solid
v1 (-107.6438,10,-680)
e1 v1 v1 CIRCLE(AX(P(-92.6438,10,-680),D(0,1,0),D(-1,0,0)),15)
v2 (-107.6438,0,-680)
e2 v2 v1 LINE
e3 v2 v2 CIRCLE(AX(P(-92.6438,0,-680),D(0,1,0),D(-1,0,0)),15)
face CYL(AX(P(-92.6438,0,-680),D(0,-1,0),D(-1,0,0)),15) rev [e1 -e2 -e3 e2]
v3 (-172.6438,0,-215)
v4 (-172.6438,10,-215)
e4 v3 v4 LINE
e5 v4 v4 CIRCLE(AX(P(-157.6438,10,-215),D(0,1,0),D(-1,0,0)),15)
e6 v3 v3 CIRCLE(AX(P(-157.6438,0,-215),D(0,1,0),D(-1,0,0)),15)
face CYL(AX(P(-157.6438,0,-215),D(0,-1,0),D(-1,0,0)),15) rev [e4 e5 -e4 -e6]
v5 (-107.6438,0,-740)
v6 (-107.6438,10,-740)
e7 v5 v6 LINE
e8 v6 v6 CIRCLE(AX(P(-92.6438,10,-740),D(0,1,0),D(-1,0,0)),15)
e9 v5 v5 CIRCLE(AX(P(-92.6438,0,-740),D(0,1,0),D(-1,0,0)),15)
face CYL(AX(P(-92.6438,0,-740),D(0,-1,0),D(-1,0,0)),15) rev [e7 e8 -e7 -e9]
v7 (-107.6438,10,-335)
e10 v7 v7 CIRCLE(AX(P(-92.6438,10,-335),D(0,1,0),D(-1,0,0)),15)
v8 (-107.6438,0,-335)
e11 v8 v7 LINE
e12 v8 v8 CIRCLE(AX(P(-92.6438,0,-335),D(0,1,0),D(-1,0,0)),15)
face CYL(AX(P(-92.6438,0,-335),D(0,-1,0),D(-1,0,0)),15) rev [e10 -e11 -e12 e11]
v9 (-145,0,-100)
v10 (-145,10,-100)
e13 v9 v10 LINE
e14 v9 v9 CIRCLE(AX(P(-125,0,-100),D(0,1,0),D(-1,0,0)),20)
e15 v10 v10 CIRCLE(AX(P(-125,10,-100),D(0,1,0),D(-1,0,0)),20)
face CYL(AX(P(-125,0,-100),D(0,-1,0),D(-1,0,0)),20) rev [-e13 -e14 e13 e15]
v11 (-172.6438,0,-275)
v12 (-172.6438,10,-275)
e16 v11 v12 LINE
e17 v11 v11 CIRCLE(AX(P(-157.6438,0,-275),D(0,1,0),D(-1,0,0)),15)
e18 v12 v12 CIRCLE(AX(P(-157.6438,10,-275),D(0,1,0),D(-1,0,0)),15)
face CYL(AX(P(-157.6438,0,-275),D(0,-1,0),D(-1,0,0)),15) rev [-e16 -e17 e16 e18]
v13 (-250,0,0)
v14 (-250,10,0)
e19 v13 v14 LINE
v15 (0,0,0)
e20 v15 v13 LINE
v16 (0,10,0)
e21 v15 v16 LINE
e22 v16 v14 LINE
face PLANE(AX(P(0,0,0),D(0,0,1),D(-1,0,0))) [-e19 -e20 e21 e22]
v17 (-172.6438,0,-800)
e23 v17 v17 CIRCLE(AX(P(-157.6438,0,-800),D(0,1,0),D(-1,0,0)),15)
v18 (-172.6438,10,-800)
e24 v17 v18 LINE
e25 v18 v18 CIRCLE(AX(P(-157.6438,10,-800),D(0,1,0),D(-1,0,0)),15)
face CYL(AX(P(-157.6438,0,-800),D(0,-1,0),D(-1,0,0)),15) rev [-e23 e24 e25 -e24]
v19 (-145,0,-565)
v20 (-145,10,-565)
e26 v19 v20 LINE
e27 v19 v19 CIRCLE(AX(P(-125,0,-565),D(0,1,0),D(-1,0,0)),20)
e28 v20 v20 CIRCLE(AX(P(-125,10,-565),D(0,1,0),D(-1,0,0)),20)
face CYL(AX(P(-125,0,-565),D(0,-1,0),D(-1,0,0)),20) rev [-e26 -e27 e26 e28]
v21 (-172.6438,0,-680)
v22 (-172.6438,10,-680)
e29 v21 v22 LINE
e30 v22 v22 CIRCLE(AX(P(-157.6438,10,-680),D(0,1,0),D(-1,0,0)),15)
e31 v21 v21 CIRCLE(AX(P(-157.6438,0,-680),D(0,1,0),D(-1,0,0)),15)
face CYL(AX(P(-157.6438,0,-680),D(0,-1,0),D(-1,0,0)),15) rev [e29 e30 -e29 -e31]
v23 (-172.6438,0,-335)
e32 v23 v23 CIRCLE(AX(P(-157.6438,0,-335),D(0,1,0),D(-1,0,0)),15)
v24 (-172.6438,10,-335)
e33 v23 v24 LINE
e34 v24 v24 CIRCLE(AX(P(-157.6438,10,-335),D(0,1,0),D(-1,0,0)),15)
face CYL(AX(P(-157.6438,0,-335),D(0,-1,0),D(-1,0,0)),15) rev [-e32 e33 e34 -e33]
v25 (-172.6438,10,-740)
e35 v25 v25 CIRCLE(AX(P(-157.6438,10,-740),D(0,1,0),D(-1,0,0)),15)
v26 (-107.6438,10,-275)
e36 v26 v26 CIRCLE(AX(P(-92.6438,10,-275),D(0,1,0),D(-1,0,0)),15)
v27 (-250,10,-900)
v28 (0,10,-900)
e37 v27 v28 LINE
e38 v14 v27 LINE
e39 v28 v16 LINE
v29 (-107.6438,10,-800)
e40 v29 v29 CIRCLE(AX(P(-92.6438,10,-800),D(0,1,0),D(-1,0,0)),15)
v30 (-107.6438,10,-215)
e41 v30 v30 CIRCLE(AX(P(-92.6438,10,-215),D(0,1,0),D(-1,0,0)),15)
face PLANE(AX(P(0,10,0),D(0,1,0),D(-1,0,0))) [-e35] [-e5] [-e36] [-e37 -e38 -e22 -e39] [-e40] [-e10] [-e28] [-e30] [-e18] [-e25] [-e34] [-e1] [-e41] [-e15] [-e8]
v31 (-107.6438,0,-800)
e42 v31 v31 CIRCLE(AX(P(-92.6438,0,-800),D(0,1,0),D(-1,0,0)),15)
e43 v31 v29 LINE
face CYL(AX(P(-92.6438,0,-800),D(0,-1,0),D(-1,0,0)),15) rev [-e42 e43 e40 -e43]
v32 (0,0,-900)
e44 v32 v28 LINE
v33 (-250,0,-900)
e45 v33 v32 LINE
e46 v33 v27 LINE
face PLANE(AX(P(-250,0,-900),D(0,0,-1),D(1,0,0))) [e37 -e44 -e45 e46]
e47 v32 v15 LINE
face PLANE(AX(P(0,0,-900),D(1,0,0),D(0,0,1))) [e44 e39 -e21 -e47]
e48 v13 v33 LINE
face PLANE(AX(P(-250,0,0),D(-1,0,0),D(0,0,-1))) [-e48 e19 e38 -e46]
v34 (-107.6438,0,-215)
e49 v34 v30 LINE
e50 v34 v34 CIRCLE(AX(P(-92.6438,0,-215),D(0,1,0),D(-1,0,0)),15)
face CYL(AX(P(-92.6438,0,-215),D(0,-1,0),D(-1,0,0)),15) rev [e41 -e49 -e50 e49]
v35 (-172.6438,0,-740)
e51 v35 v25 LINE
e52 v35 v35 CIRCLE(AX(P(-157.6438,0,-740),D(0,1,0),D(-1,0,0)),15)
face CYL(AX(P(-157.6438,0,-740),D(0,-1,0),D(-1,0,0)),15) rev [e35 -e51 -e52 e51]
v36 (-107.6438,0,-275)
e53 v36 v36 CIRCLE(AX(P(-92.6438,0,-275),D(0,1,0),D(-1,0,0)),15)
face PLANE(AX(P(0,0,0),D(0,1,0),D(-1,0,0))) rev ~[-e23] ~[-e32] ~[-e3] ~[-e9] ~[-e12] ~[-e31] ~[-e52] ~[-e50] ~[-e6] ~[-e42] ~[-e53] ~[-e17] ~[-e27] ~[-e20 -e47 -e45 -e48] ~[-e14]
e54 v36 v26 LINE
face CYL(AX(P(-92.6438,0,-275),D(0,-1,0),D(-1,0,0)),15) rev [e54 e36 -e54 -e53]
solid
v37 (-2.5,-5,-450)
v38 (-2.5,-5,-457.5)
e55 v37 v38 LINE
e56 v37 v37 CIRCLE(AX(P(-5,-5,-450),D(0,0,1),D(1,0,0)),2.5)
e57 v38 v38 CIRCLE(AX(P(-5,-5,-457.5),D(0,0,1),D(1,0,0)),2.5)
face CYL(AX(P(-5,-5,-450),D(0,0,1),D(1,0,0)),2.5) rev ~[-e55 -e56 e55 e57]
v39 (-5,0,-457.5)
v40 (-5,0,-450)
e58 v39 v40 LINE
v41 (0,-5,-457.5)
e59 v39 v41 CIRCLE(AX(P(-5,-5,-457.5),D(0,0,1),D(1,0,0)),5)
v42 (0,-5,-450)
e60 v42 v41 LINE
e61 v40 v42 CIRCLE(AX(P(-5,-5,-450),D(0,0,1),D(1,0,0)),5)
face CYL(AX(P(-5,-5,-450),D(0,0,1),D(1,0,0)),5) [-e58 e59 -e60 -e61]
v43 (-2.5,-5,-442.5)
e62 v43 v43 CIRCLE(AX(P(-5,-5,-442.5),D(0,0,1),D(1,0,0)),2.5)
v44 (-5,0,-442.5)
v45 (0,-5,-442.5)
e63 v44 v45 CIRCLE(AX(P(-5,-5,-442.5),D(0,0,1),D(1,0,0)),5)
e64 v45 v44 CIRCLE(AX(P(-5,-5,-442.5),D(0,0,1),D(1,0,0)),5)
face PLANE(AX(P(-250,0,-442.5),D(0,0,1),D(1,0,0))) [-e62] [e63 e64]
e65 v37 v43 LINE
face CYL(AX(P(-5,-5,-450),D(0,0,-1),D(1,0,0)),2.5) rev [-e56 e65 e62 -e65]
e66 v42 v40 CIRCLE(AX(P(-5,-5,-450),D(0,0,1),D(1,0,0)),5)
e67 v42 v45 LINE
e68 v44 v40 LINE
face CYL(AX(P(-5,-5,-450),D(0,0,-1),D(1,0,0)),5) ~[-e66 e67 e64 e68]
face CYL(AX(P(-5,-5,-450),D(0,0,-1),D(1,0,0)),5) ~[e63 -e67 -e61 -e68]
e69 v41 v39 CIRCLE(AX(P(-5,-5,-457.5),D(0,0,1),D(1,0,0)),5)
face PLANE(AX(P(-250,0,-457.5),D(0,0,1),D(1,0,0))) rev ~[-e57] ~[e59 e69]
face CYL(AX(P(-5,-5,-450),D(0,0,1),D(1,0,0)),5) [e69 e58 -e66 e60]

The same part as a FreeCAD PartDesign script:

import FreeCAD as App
import Part
import Sketcher
Q = App.Units.Quantity


def add_polygon(sketch, points):
    """Adds a closed chain of lines whose ends are joined by coincident constraints."""
    first, n = sketch.GeometryCount, len(points)
    for a, b in zip(points, points[1:] + points[:1]):
        sketch.addGeometry(Part.LineSegment(App.Vector(*a, 0), App.Vector(*b, 0)), False)
    for i in range(n):
        sketch.addConstraint(Sketcher.Constraint("Coincident", first + i, 2, first + (i + 1) % n, 1))

doc = App.newDocument("Part")
body = doc.addObject("PartDesign::Body", "Body")
body.AllowCompound = True

# Sketch on XY plane
sketch1 = doc.addObject("Sketcher::SketchObject", "Sketch")
body.addObject(sketch1)
sketch1.AttachmentSupport = (doc.XY_Plane, [""])
sketch1.MapMode = "FlatFace"
sketch1.AttachmentOffset = App.Placement(App.Vector(0, 0, -450), App.Rotation())
sketch1.addGeometry(Part.Circle(App.Vector(-5, -5, 0), App.Vector(0, 0, 1), 5), False)
sketch1.addGeometry(Part.Circle(App.Vector(-5, -5, 0), App.Vector(0, 0, 1), 2.5), False)
sketch1.addConstraint(Sketcher.Constraint("Coincident", 1, 3, 0, 3))
sketch1.addConstraint(Sketcher.Constraint("Diameter", 0, Q("10 mm")))
sketch1.addConstraint(Sketcher.Constraint("Diameter", 1, Q("5 mm")))
sketch1.addConstraint(Sketcher.Constraint("DistanceX", 0, 3, -1, 1, Q("5 mm")))
sketch1.addConstraint(Sketcher.Constraint("DistanceY", 0, 3, -1, 1, Q("5 mm")))
pad1 = doc.addObject("PartDesign::Pad", "Pad")
body.addObject(pad1)
pad1.Profile = sketch1
pad1.Length = 15
pad1.Midplane = True

# Sketch on XZ plane
sketch2 = doc.addObject("Sketcher::SketchObject", "Sketch001")
body.addObject(sketch2)
sketch2.AttachmentSupport = (doc.XZ_Plane, [""])
sketch2.MapMode = "FlatFace"
add_polygon(sketch2, [(-250, 0), (0, 0), (0, -900), (-250, -900)])  # lines 0-3
sketch2.addGeometry(Part.Circle(App.Vector(-93, -800, 0), App.Vector(0, 0, 1), 15), False)  # 4
sketch2.addGeometry(Part.Circle(App.Vector(-93, -740, 0), App.Vector(0, 0, 1), 15), False)  # 5
sketch2.addGeometry(Part.Circle(App.Vector(-93, -680, 0), App.Vector(0, 0, 1), 15), False)  # 6
sketch2.addGeometry(Part.Circle(App.Vector(-158, -800, 0), App.Vector(0, 0, 1), 15), False)  # 7
sketch2.addGeometry(Part.Circle(App.Vector(-158, -740, 0), App.Vector(0, 0, 1), 15), False)  # 8
sketch2.addGeometry(Part.Circle(App.Vector(-158, -680, 0), App.Vector(0, 0, 1), 15), False)  # 9
sketch2.addGeometry(Part.Circle(App.Vector(-125, -565, 0), App.Vector(0, 0, 1), 20), False)  # 10
sketch2.addGeometry(Part.Circle(App.Vector(-93, -335, 0), App.Vector(0, 0, 1), 15), False)  # 11
sketch2.addGeometry(Part.Circle(App.Vector(-93, -275, 0), App.Vector(0, 0, 1), 15), False)  # 12
sketch2.addGeometry(Part.Circle(App.Vector(-93, -215, 0), App.Vector(0, 0, 1), 15), False)  # 13
sketch2.addGeometry(Part.Circle(App.Vector(-158, -335, 0), App.Vector(0, 0, 1), 15), False)  # 14
sketch2.addGeometry(Part.Circle(App.Vector(-158, -275, 0), App.Vector(0, 0, 1), 15), False)  # 15
sketch2.addGeometry(Part.Circle(App.Vector(-158, -215, 0), App.Vector(0, 0, 1), 15), False)  # 16
sketch2.addGeometry(Part.Circle(App.Vector(-125, -100, 0), App.Vector(0, 0, 1), 20), False)  # 17
sketch2.addConstraint(Sketcher.Constraint("Horizontal", 0))
sketch2.addConstraint(Sketcher.Constraint("Vertical", 1))
sketch2.addConstraint(Sketcher.Constraint("Horizontal", 2))
sketch2.addConstraint(Sketcher.Constraint("Vertical", 3))
sketch2.addConstraint(Sketcher.Constraint("Coincident", 0, 2, -1, 1))
sketch2.addConstraint(Sketcher.Constraint("Equal", 4, 5))
sketch2.addConstraint(Sketcher.Constraint("Equal", 5, 6))
sketch2.addConstraint(Sketcher.Constraint("Equal", 6, 7))
sketch2.addConstraint(Sketcher.Constraint("Equal", 7, 8))
sketch2.addConstraint(Sketcher.Constraint("Equal", 8, 9))
sketch2.addConstraint(Sketcher.Constraint("Equal", 9, 11))
sketch2.addConstraint(Sketcher.Constraint("Equal", 11, 12))
sketch2.addConstraint(Sketcher.Constraint("Equal", 12, 13))
sketch2.addConstraint(Sketcher.Constraint("Equal", 13, 14))
sketch2.addConstraint(Sketcher.Constraint("Equal", 14, 15))
sketch2.addConstraint(Sketcher.Constraint("Equal", 15, 16))
sketch2.addConstraint(Sketcher.Constraint("Equal", 10, 17))
sketch2.addConstraint(Sketcher.Constraint("Horizontal", 4, 3, 7, 3))
sketch2.addConstraint(Sketcher.Constraint("Horizontal", 5, 3, 8, 3))
sketch2.addConstraint(Sketcher.Constraint("Horizontal", 6, 3, 9, 3))
sketch2.addConstraint(Sketcher.Constraint("Horizontal", 11, 3, 14, 3))
sketch2.addConstraint(Sketcher.Constraint("Horizontal", 12, 3, 15, 3))
sketch2.addConstraint(Sketcher.Constraint("Horizontal", 13, 3, 16, 3))
sketch2.addConstraint(Sketcher.Constraint("Vertical", 4, 3, 5, 3))
sketch2.addConstraint(Sketcher.Constraint("Vertical", 5, 3, 6, 3))
sketch2.addConstraint(Sketcher.Constraint("Vertical", 7, 3, 8, 3))
sketch2.addConstraint(Sketcher.Constraint("Vertical", 8, 3, 9, 3))
sketch2.addConstraint(Sketcher.Constraint("Vertical", 6, 3, 11, 3))
sketch2.addConstraint(Sketcher.Constraint("Vertical", 11, 3, 12, 3))
sketch2.addConstraint(Sketcher.Constraint("Vertical", 12, 3, 13, 3))
sketch2.addConstraint(Sketcher.Constraint("Vertical", 9, 3, 14, 3))
sketch2.addConstraint(Sketcher.Constraint("Vertical", 14, 3, 15, 3))
sketch2.addConstraint(Sketcher.Constraint("Vertical", 15, 3, 16, 3))
sketch2.addConstraint(Sketcher.Constraint("Vertical", 10, 3, 17, 3))
sketch2.addConstraint(Sketcher.Constraint("Diameter", 4, Q("30 mm")))
sketch2.addConstraint(Sketcher.Constraint("Diameter", 10, Q("40 mm")))
sketch2.addConstraint(Sketcher.Constraint("DistanceX", 0, 1, 0, 2, Q("250 mm")))
sketch2.addConstraint(Sketcher.Constraint("DistanceY", 1, 2, 1, 1, Q("900 mm")))
sketch2.addConstraint(Sketcher.Constraint("DistanceX", 10, 3, -1, 1, Q("125 mm")))
sketch2.addConstraint(Sketcher.Constraint("DistanceY", 13, 3, -1, 1, Q("215 mm")))
sketch2.addConstraint(Sketcher.Constraint("DistanceY", 17, 3, -1, 1, Q("100 mm")))
sketch2.addConstraint(Sketcher.Constraint("DistanceY", 4, 3, 5, 3, Q("60 mm")))
sketch2.addConstraint(Sketcher.Constraint("DistanceY", 5, 3, 6, 3, Q("60 mm")))
sketch2.addConstraint(Sketcher.Constraint("DistanceX", 7, 3, 4, 3, Q("65 mm")))
sketch2.addConstraint(Sketcher.Constraint("DistanceY", 6, 3, 10, 3, Q("115 mm")))
sketch2.addConstraint(Sketcher.Constraint("DistanceY", 11, 3, 12, 3, Q("60 mm")))
sketch2.addConstraint(Sketcher.Constraint("DistanceY", 12, 3, 13, 3, Q("60 mm")))
sketch2.addConstraint(Sketcher.Constraint("DistanceY", 1, 2, 4, 3, Q("100 mm")))
sketch2.addConstraint(Sketcher.Constraint("DistanceX", 4, 3, -1, 1, Q("92.6438 mm")))
pad2 = doc.addObject("PartDesign::Pad", "Pad001")
body.addObject(pad2)
pad2.Profile = sketch2
pad2.Length = 10
pad2.Reversed = True

doc.recompute()
